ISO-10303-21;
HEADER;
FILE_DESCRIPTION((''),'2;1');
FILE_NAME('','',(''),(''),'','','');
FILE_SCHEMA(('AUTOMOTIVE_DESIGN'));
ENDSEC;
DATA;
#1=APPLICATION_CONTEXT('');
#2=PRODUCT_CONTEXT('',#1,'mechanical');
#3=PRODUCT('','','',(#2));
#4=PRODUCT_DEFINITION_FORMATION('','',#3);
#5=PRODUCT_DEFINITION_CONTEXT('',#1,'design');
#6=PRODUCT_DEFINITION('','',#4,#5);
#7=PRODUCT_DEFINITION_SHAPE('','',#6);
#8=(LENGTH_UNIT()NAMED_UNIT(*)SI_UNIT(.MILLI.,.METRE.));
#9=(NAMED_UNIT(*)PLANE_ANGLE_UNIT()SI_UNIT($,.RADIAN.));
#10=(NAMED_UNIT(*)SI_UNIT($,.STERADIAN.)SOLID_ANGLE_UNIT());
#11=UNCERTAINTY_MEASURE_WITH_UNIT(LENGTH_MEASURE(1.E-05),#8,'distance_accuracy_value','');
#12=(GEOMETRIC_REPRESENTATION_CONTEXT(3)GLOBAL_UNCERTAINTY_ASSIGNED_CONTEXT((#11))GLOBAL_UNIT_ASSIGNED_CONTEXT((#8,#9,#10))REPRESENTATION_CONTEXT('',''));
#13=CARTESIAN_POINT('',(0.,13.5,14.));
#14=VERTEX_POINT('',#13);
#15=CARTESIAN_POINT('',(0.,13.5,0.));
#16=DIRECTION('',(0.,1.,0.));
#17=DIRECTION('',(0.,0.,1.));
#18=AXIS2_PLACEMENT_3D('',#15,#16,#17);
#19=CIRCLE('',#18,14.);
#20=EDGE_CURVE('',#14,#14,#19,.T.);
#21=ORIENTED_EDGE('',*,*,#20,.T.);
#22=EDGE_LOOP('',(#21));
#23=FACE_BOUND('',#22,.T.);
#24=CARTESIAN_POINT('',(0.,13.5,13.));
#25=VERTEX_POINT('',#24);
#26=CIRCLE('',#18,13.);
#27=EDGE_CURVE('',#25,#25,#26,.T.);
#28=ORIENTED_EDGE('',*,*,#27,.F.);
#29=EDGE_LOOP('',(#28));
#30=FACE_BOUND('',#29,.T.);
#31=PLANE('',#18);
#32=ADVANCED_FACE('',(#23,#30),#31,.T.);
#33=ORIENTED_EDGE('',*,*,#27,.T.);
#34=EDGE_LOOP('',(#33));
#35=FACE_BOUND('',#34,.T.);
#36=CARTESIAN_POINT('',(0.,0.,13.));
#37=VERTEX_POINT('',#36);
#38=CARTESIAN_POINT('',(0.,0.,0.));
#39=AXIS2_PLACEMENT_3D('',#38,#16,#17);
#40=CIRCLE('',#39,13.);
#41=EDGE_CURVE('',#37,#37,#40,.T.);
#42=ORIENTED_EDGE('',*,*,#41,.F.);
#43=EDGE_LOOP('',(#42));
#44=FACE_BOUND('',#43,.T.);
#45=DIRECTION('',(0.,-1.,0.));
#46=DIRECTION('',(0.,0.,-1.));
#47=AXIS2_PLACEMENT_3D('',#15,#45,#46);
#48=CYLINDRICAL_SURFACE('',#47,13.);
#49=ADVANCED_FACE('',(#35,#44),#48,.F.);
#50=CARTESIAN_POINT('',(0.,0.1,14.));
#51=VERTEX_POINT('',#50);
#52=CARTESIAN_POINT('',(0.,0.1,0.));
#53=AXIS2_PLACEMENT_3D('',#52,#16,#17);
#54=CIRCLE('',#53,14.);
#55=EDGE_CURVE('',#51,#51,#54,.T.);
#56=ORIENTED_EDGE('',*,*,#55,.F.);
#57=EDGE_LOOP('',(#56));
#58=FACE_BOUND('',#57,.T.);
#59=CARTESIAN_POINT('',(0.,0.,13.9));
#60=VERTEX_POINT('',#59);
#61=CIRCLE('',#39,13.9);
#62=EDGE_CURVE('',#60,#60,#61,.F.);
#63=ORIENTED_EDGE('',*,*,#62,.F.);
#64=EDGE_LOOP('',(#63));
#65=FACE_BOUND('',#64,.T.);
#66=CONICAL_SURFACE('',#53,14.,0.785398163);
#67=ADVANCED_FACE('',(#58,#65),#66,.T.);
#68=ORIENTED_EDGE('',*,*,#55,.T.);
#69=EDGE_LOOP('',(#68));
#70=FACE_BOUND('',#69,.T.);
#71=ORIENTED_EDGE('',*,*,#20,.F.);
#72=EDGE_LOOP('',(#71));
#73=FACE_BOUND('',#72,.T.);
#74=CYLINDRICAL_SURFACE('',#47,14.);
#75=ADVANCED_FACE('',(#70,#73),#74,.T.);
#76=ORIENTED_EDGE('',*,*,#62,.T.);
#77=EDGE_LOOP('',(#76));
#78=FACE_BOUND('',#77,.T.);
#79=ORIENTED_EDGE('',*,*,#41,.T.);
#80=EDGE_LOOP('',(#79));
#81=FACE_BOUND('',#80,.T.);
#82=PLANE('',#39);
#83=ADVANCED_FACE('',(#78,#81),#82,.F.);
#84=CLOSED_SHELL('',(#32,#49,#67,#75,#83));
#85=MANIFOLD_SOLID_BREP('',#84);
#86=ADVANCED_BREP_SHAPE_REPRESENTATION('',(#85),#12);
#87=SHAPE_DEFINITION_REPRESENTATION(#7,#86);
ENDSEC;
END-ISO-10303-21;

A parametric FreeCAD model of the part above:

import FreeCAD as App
import Part
import Sketcher
from FreeCAD import Vector


def edges_at(feature, points):
    """Names of the edges that pass closest to the given points."""
    edges = feature.Shape.Edges
    near = lambda p: min(range(len(edges)), key=lambda i: edges[i].distToShape(Part.Vertex(*p))[0])
    return sorted({f"Edge{near(p) + 1}" for p in points})

doc = App.newDocument("Part")
params = doc.addObject("Spreadsheet::Sheet", "Params")
for row, (alias, value) in enumerate([
    ("sketch1_diameter", "28 mm"),
    ("sketch1_diameter2", "26 mm"),
    ("pad1_length", "13.5 mm"),
    ("chamfer_size", "0.1 mm"),
], start=1):
    params.set(f"A{row}", alias)
    params.set(f"B{row}", "=" + value)
    params.setAlias(f"B{row}", alias)

body = doc.addObject("PartDesign::Body", "Body")

# Sketch on XZ plane
sketch1 = body.newObject("Sketcher::SketchObject", "Sketch")
sketch1.AttachmentSupport = (doc.getObject("XZ_Plane"), [""])
sketch1.MapMode = "FlatFace"
sketch1.addGeometry(Part.Circle(Vector(0, 0, 0), Vector(0, 0, 1), 14), False)
sketch1.addGeometry(Part.Circle(Vector(0, 0, 0), Vector(0, 0, 1), 13), False)
sketch1.addConstraint(Sketcher.Constraint("Coincident", 0, 3, -1, 1))
sketch1.addConstraint(Sketcher.Constraint("Coincident", 1, 3, -1, 1))
sketch1.addConstraint(Sketcher.Constraint("Diameter", 0, 28.0))
sketch1.addConstraint(Sketcher.Constraint("Diameter", 1, 26.0))
sketch1.setExpression("Constraints[2]", "Params.sketch1_diameter")
sketch1.setExpression("Constraints[3]", "Params.sketch1_diameter2")
pad1 = body.newObject("PartDesign::Pad", "Pad")
pad1.Profile = sketch1
pad1.setExpression("Length", "Params.pad1_length")
pad1.Reversed = True
doc.recompute()

chamfer = body.newObject("PartDesign::Chamfer", "Chamfer")
chamfer.Base = (pad1, edges_at(pad1, [(-14, 0, 0)]))
chamfer.setExpression("Size", "Params.chamfer_size")

doc.recompute()
